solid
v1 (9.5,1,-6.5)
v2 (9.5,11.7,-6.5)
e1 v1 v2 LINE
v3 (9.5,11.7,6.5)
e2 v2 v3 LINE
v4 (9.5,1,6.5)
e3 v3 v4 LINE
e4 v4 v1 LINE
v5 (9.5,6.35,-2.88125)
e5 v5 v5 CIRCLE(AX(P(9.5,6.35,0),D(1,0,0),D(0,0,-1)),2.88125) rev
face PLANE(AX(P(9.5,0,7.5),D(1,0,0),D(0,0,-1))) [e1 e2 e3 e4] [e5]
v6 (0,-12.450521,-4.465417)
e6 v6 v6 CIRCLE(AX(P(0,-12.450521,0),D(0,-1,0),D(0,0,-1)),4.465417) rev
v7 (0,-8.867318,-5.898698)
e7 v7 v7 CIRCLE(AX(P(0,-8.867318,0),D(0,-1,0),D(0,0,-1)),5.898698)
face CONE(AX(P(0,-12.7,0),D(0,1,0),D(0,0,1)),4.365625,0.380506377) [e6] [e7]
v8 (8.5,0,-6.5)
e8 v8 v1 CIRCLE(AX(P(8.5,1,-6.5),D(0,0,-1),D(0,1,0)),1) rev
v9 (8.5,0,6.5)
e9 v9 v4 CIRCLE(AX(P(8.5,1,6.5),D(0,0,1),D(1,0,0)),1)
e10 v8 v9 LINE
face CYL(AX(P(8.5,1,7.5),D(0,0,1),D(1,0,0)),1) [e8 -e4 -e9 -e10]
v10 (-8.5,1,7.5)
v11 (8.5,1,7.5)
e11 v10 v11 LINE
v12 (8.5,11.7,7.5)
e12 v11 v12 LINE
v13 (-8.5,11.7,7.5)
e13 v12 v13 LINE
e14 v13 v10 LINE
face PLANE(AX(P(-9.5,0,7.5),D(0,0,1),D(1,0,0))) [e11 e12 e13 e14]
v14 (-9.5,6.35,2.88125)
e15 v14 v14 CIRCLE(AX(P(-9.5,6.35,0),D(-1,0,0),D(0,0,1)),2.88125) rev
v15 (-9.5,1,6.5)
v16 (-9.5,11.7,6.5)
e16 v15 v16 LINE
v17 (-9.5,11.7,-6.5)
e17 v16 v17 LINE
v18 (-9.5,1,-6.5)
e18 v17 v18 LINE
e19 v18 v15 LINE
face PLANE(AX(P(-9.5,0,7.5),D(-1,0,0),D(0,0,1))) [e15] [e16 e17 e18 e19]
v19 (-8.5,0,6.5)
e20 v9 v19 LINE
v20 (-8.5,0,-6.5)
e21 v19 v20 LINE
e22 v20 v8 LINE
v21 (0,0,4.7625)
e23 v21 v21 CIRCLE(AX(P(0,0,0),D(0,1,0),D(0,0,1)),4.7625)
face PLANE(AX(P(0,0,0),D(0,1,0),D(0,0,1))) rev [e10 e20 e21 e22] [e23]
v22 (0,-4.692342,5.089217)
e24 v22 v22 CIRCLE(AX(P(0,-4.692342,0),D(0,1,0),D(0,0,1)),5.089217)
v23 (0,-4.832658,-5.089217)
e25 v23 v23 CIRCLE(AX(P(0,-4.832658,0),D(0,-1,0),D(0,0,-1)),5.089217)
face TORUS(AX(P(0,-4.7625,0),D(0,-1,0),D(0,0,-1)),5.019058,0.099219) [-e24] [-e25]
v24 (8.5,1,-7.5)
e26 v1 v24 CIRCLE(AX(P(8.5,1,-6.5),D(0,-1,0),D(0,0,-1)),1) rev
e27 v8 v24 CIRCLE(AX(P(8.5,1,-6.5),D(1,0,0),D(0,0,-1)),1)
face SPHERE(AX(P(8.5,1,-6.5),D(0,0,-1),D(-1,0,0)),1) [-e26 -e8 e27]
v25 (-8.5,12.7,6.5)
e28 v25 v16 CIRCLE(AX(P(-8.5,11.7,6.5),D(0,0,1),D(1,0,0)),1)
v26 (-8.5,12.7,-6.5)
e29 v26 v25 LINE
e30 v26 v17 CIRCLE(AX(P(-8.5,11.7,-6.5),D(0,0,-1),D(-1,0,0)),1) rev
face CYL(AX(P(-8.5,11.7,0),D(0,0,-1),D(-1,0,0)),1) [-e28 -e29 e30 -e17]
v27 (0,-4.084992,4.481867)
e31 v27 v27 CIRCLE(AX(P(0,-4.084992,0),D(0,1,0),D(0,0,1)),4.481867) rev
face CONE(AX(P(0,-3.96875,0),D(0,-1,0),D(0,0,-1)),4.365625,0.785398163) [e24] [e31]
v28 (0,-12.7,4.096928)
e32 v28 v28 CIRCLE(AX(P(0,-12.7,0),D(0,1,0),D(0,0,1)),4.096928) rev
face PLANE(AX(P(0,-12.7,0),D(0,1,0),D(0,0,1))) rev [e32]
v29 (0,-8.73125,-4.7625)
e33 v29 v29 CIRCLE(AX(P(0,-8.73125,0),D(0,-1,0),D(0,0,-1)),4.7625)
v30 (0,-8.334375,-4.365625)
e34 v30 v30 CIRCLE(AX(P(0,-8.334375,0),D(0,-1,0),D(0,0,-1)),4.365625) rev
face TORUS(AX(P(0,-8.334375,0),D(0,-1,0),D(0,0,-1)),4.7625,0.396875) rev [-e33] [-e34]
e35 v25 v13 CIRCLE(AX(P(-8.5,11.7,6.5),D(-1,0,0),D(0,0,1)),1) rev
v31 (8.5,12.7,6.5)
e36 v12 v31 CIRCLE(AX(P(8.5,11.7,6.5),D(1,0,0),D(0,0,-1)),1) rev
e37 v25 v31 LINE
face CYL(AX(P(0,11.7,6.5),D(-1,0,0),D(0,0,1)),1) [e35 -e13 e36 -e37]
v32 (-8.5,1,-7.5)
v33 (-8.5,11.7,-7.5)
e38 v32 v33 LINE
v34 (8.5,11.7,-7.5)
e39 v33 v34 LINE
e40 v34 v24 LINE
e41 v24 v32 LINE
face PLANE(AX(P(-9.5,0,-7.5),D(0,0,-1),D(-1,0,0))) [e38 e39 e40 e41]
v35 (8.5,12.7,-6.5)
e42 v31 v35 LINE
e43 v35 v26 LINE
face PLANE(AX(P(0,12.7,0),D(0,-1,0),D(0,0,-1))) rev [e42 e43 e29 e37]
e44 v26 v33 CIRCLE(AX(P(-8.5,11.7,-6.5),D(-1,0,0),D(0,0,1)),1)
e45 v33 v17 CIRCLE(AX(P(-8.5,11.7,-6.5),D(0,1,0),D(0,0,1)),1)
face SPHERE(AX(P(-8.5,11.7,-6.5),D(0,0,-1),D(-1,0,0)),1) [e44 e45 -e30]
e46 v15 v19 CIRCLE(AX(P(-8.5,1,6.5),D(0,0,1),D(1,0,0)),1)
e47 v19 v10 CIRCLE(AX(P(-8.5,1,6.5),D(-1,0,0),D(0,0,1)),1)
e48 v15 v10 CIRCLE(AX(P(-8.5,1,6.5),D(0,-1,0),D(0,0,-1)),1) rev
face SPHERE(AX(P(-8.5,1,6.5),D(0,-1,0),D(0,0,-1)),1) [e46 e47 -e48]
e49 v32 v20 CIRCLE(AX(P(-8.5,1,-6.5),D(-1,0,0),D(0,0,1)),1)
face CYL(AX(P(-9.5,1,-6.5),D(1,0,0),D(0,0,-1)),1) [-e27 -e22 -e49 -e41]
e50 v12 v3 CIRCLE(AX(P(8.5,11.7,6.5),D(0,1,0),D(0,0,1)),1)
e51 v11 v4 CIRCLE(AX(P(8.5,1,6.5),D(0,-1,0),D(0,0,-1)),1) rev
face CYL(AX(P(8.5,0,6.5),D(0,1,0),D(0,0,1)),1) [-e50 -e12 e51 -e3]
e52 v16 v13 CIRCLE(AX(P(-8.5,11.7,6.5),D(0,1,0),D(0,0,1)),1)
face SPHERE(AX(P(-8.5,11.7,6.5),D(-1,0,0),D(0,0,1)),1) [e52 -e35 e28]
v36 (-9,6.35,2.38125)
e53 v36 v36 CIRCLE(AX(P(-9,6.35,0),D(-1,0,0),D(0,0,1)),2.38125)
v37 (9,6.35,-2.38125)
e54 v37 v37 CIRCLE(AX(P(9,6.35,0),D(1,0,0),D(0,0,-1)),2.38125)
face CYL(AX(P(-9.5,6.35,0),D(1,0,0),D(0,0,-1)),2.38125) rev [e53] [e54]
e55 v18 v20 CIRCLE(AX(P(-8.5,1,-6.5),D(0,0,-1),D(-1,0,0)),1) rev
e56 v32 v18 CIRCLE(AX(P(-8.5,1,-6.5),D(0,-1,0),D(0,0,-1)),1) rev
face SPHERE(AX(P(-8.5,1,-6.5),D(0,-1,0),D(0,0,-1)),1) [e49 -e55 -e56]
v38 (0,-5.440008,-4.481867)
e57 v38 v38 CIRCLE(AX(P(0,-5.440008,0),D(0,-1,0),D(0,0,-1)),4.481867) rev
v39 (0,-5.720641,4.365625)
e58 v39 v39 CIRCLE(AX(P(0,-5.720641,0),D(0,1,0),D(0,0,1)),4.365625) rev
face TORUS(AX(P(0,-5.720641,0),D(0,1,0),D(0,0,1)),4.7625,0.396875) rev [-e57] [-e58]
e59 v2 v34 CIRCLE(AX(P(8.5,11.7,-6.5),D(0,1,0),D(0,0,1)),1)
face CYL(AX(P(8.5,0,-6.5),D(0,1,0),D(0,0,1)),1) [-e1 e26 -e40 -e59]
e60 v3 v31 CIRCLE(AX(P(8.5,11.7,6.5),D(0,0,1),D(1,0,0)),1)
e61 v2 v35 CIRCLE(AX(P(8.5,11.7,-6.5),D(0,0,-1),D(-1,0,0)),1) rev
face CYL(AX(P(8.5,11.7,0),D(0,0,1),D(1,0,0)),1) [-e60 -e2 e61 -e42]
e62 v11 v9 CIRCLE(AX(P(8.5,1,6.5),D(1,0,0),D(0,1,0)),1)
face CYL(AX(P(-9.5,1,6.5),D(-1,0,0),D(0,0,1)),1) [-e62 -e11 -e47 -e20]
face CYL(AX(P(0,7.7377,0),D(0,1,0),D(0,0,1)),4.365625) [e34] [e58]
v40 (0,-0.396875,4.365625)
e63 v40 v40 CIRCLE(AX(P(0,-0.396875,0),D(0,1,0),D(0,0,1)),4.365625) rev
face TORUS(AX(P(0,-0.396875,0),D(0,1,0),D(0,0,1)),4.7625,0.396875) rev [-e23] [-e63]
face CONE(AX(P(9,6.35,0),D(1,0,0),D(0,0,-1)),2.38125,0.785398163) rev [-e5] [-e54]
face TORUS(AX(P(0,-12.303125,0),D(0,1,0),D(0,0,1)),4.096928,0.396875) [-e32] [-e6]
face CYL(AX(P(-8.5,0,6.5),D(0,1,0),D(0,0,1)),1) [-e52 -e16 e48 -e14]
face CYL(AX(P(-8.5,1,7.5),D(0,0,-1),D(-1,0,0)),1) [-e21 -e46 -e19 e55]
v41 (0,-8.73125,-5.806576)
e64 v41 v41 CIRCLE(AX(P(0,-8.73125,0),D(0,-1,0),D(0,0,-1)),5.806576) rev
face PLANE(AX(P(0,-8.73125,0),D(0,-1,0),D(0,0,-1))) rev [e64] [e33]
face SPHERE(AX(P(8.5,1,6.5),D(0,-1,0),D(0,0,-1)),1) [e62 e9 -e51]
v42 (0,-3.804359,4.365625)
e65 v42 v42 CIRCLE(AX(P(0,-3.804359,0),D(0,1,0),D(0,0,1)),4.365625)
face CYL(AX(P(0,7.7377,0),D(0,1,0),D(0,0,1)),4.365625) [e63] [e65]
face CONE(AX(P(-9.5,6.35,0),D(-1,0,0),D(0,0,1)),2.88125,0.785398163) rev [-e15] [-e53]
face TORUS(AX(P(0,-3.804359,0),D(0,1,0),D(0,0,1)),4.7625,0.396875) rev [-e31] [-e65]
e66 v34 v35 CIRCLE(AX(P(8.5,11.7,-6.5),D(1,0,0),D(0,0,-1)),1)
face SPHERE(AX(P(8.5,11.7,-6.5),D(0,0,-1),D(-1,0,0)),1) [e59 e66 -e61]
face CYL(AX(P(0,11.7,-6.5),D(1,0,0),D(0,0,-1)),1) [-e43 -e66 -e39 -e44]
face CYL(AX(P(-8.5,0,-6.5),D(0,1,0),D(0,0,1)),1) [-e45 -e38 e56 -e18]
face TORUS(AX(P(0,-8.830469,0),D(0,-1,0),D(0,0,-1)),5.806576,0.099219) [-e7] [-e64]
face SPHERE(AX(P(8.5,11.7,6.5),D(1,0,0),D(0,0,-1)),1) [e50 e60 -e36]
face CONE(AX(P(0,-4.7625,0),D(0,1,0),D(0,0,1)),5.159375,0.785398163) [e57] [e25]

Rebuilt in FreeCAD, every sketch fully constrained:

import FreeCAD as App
import Part
import Sketcher
Q = App.Units.Quantity


def edges_at(feature, points):
    """Names of the edges that pass closest to the given points."""
    edges = feature.Shape.Edges
    near = lambda p: min(range(len(edges)), key=lambda i: edges[i].distToShape(Part.Vertex(*p))[0])
    return sorted({f"Edge{near(p) + 1}" for p in points})

doc = App.newDocument("Part")
body = doc.addObject("PartDesign::Body", "Body")

# Sketch on XY plane
sketch1 = body.newObject("Sketcher::SketchObject", "Sketch")
sketch1.AttachmentSupport = (doc.getObject("XY_Plane"), [""])
sketch1.MapMode = "FlatFace"
sketch1.addGeometry([
    Part.LineSegment(App.Vector(5.2, -4.8, 0), App.Vector(4.4, -4, 0)),  # 0
    Part.LineSegment(App.Vector(4.4, -4, 0), App.Vector(4.4, 0, 0)),  # 1
    Part.LineSegment(App.Vector(4.4, 0, 0), App.Vector(5.4, 0, 0)),  # 2
    Part.LineSegment(App.Vector(5.4, 0, 0), App.Vector(5.4, 4, 0)),  # 3
    Part.LineSegment(App.Vector(5.4, 4, 0), App.Vector(3.8, 4, 0)),  # 4
    Part.LineSegment(App.Vector(3.8, 4, 0), App.Vector(3.8, 8.7, 0)),  # 5
    Part.LineSegment(App.Vector(3.8, 8.7, 0), App.Vector(5.4, 8.7, 0)),  # 6
    Part.LineSegment(App.Vector(5.4, 8.7, 0), App.Vector(5.4, 12.7, 0)),  # 7
    Part.LineSegment(App.Vector(5.4, 12.7, 0), App.Vector(0, 12.7, 0)),  # 8
    Part.LineSegment(App.Vector(0, 12.7, 0), App.Vector(0, -12.7, 0)),  # 9
    Part.LineSegment(App.Vector(0, -12.7, 0), App.Vector(4.4, -12.7, 0)),  # 10
    Part.LineSegment(App.Vector(4.4, -12.7, 0), App.Vector(6, -8.7, 0)),  # 11
    Part.LineSegment(App.Vector(6, -8.7, 0), App.Vector(4.4, -8.7, 0)),  # 12
    Part.LineSegment(App.Vector(4.4, -8.7, 0), App.Vector(4.4, -5.6, 0)),  # 13
    Part.LineSegment(App.Vector(4.4, -5.6, 0), App.Vector(5.2, -4.8, 0)),  # 14
], False)
sketch1.addConstraint([
    Sketcher.Constraint("Coincident", 0, 2, 1, 1),
    Sketcher.Constraint("Coincident", 1, 2, 2, 1),
    Sketcher.Constraint("Coincident", 2, 2, 3, 1),
    Sketcher.Constraint("Coincident", 3, 2, 4, 1),
    Sketcher.Constraint("Coincident", 4, 2, 5, 1),
    Sketcher.Constraint("Coincident", 5, 2, 6, 1),
    Sketcher.Constraint("Coincident", 6, 2, 7, 1),
    Sketcher.Constraint("Coincident", 7, 2, 8, 1),
    Sketcher.Constraint("Coincident", 8, 2, 9, 1),
    Sketcher.Constraint("Coincident", 9, 2, 10, 1),
    Sketcher.Constraint("Coincident", 10, 2, 11, 1),
    Sketcher.Constraint("Coincident", 11, 2, 12, 1),
    Sketcher.Constraint("Coincident", 12, 2, 13, 1),
    Sketcher.Constraint("Coincident", 13, 2, 14, 1),
    Sketcher.Constraint("Coincident", 14, 2, 0, 1),
    Sketcher.Constraint("Vertical", 1),
    Sketcher.Constraint("Horizontal", 2),
    Sketcher.Constraint("Vertical", 3),
    Sketcher.Constraint("Horizontal", 4),
    Sketcher.Constraint("Vertical", 5),
    Sketcher.Constraint("Horizontal", 6),
    Sketcher.Constraint("Vertical", 7),
    Sketcher.Constraint("Horizontal", 8),
    Sketcher.Constraint("Vertical", 9),
    Sketcher.Constraint("Horizontal", 10),
    Sketcher.Constraint("Horizontal", 12),
    Sketcher.Constraint("Vertical", 13),
    Sketcher.Constraint("Symmetric", 8, 2, 9, 2, -1, 1),
    Sketcher.Constraint("PointOnObject", 1, 2, -1),
    Sketcher.Constraint("Perpendicular", 0, 14),
    Sketcher.Constraint("Vertical", 3, 2, 6, 2),
    Sketcher.Constraint("Vertical", 1, 2, 10, 2),
    Sketcher.Constraint("Vertical", 10, 2, 12, 2),
    Sketcher.Constraint("Equal", 6, 12),
    Sketcher.Constraint("Equal", 1, 3),
    Sketcher.Constraint("Equal", 3, 7),
    Sketcher.Constraint("Equal", 0, 14),
    Sketcher.Constraint("DistanceY", 9, 2, 9, 1, Q("1 in")),
    Sketcher.Constraint("DistanceX", 4, 2, 4, 1, Q("0.0625 in")),
    Sketcher.Constraint("DistanceX", 10, 1, 10, 2, Q("0.171875 in")),
    Sketcher.Constraint("DistanceY", 1, 1, 1, 2, Q("0.15625 in")),
    Sketcher.Constraint("DistanceY", 13, 1, 13, 2, Q("0.125 in")),
    Sketcher.Constraint("DistanceX", -1, 1, 4, 2, Q("0.15 in")),
    Sketcher.Constraint("DistanceY", 11, 2, -1, 1, Q("0.34375 in")),
])
revolution = body.newObject("PartDesign::Revolution", "Revolution")
revolution.Profile = sketch1
revolution.ReferenceAxis = (sketch1, ["V_Axis"])
revolution.Angle = 360

# Sketch on XZ plane
sketch2 = body.newObject("Sketcher::SketchObject", "Sketch001")
sketch2.AttachmentSupport = (doc.getObject("XZ_Plane"), [""])
sketch2.MapMode = "FlatFace"
sketch2.AttachmentOffset = App.Placement(App.Vector(0, 0, -0.5 * 25.4), App.Rotation())
sketch2.addGeometry([
    Part.LineSegment(App.Vector(-10, -8, 0), App.Vector(-10, 8, 0)),
    Part.LineSegment(App.Vector(-10, 8, 0), App.Vector(10, 8, 0)),
    Part.LineSegment(App.Vector(10, 8, 0), App.Vector(10, -8, 0)),
    Part.LineSegment(App.Vector(10, -8, 0), App.Vector(-10, -8, 0)),
], False)
sketch2.addConstraint([
    Sketcher.Constraint("Coincident", 0, 2, 1, 1),
    Sketcher.Constraint("Coincident", 1, 2, 2, 1),
    Sketcher.Constraint("Coincident", 2, 2, 3, 1),
    Sketcher.Constraint("Coincident", 3, 2, 0, 1),
    Sketcher.Constraint("Vertical", 0),
    Sketcher.Constraint("Horizontal", 1),
    Sketcher.Constraint("Vertical", 2),
    Sketcher.Constraint("Horizontal", 3),
    Sketcher.Constraint("Symmetric", 0, 2, 2, 2, -1, 1),
    Sketcher.Constraint("DistanceX", 1, 1, 1, 2, 19.0),
    Sketcher.Constraint("DistanceY", 0, 1, 0, 2, 15.0),
])
pad1 = body.newObject("PartDesign::Pad", "Pad")
pad1.Profile = sketch2
pad1.Length = Q("0.5 in")

# Sketch on YZ plane
sketch3 = body.newObject("Sketcher::SketchObject", "Sketch002")
sketch3.AttachmentSupport = (doc.getObject("YZ_Plane"), [""])
sketch3.MapMode = "FlatFace"
sketch3.addGeometry(Part.Circle(App.Vector(6.3, 0, 0), App.Vector(0, 0, 1), 2.4), False)
sketch3.addConstraint([
    Sketcher.Constraint("PointOnObject", 0, 3, -1),
    Sketcher.Constraint("Diameter", 0, Q("0.1875 in")),
    Sketcher.Constraint("DistanceX", -1, 1, 0, 3, Q("0.25 in")),
])
pocket1 = body.newObject("PartDesign::Pocket", "Pocket")
pocket1.Profile = sketch3
pocket1.Type = "ThroughAll"
pocket1.Midplane = True
doc.recompute()

fillet = body.newObject("PartDesign::Fillet", "Fillet")
fillet.Base = (pocket1, edges_at(pocket1, [
    (0, -5.556, -4.366),
    (0, -8.731, -4.366),
    (0, -12.7, -4.366),
    (0, 0, -4.366),
    (0, -3.969, -4.366),
]))
fillet.Radius = Q("0.015625 in")
doc.recompute()

fillet2 = body.newObject("PartDesign::Fillet", "Fillet001")
fillet2.Base = (fillet, edges_at(fillet, [(0, -4.763, -5.159), (0, -8.731, -5.953)]))
fillet2.Radius = 0.099219
doc.recompute()

chamfer = body.newObject("PartDesign::Chamfer", "Chamfer")
chamfer.Base = (fillet2, edges_at(fillet2, [(-9.5, 6.35, 2.381), (9.5, 6.35, 2.381)]))
chamfer.Size = 0.5
doc.recompute()

fillet3 = body.newObject("PartDesign::Fillet", "Fillet002")
fillet3.Base = (chamfer, edges_at(chamfer, [
    (9.5, 0, 0),
    (9.5, 6.35, -7.5),
    (0, 0, 7.5),
    (9.5, 6.35, 7.5),
    (-9.5, 0, 0),
    (-9.5, 6.35, 7.5),
    (0, 0, -7.5),
    (-9.5, 6.35, -7.5),
    (9.5, 12.7, 0),
    (0, 12.7, -7.5),
    (-9.5, 12.7, 0),
    (0, 12.7, 7.5),
]))
fillet3.Radius = 1

doc.recompute()
